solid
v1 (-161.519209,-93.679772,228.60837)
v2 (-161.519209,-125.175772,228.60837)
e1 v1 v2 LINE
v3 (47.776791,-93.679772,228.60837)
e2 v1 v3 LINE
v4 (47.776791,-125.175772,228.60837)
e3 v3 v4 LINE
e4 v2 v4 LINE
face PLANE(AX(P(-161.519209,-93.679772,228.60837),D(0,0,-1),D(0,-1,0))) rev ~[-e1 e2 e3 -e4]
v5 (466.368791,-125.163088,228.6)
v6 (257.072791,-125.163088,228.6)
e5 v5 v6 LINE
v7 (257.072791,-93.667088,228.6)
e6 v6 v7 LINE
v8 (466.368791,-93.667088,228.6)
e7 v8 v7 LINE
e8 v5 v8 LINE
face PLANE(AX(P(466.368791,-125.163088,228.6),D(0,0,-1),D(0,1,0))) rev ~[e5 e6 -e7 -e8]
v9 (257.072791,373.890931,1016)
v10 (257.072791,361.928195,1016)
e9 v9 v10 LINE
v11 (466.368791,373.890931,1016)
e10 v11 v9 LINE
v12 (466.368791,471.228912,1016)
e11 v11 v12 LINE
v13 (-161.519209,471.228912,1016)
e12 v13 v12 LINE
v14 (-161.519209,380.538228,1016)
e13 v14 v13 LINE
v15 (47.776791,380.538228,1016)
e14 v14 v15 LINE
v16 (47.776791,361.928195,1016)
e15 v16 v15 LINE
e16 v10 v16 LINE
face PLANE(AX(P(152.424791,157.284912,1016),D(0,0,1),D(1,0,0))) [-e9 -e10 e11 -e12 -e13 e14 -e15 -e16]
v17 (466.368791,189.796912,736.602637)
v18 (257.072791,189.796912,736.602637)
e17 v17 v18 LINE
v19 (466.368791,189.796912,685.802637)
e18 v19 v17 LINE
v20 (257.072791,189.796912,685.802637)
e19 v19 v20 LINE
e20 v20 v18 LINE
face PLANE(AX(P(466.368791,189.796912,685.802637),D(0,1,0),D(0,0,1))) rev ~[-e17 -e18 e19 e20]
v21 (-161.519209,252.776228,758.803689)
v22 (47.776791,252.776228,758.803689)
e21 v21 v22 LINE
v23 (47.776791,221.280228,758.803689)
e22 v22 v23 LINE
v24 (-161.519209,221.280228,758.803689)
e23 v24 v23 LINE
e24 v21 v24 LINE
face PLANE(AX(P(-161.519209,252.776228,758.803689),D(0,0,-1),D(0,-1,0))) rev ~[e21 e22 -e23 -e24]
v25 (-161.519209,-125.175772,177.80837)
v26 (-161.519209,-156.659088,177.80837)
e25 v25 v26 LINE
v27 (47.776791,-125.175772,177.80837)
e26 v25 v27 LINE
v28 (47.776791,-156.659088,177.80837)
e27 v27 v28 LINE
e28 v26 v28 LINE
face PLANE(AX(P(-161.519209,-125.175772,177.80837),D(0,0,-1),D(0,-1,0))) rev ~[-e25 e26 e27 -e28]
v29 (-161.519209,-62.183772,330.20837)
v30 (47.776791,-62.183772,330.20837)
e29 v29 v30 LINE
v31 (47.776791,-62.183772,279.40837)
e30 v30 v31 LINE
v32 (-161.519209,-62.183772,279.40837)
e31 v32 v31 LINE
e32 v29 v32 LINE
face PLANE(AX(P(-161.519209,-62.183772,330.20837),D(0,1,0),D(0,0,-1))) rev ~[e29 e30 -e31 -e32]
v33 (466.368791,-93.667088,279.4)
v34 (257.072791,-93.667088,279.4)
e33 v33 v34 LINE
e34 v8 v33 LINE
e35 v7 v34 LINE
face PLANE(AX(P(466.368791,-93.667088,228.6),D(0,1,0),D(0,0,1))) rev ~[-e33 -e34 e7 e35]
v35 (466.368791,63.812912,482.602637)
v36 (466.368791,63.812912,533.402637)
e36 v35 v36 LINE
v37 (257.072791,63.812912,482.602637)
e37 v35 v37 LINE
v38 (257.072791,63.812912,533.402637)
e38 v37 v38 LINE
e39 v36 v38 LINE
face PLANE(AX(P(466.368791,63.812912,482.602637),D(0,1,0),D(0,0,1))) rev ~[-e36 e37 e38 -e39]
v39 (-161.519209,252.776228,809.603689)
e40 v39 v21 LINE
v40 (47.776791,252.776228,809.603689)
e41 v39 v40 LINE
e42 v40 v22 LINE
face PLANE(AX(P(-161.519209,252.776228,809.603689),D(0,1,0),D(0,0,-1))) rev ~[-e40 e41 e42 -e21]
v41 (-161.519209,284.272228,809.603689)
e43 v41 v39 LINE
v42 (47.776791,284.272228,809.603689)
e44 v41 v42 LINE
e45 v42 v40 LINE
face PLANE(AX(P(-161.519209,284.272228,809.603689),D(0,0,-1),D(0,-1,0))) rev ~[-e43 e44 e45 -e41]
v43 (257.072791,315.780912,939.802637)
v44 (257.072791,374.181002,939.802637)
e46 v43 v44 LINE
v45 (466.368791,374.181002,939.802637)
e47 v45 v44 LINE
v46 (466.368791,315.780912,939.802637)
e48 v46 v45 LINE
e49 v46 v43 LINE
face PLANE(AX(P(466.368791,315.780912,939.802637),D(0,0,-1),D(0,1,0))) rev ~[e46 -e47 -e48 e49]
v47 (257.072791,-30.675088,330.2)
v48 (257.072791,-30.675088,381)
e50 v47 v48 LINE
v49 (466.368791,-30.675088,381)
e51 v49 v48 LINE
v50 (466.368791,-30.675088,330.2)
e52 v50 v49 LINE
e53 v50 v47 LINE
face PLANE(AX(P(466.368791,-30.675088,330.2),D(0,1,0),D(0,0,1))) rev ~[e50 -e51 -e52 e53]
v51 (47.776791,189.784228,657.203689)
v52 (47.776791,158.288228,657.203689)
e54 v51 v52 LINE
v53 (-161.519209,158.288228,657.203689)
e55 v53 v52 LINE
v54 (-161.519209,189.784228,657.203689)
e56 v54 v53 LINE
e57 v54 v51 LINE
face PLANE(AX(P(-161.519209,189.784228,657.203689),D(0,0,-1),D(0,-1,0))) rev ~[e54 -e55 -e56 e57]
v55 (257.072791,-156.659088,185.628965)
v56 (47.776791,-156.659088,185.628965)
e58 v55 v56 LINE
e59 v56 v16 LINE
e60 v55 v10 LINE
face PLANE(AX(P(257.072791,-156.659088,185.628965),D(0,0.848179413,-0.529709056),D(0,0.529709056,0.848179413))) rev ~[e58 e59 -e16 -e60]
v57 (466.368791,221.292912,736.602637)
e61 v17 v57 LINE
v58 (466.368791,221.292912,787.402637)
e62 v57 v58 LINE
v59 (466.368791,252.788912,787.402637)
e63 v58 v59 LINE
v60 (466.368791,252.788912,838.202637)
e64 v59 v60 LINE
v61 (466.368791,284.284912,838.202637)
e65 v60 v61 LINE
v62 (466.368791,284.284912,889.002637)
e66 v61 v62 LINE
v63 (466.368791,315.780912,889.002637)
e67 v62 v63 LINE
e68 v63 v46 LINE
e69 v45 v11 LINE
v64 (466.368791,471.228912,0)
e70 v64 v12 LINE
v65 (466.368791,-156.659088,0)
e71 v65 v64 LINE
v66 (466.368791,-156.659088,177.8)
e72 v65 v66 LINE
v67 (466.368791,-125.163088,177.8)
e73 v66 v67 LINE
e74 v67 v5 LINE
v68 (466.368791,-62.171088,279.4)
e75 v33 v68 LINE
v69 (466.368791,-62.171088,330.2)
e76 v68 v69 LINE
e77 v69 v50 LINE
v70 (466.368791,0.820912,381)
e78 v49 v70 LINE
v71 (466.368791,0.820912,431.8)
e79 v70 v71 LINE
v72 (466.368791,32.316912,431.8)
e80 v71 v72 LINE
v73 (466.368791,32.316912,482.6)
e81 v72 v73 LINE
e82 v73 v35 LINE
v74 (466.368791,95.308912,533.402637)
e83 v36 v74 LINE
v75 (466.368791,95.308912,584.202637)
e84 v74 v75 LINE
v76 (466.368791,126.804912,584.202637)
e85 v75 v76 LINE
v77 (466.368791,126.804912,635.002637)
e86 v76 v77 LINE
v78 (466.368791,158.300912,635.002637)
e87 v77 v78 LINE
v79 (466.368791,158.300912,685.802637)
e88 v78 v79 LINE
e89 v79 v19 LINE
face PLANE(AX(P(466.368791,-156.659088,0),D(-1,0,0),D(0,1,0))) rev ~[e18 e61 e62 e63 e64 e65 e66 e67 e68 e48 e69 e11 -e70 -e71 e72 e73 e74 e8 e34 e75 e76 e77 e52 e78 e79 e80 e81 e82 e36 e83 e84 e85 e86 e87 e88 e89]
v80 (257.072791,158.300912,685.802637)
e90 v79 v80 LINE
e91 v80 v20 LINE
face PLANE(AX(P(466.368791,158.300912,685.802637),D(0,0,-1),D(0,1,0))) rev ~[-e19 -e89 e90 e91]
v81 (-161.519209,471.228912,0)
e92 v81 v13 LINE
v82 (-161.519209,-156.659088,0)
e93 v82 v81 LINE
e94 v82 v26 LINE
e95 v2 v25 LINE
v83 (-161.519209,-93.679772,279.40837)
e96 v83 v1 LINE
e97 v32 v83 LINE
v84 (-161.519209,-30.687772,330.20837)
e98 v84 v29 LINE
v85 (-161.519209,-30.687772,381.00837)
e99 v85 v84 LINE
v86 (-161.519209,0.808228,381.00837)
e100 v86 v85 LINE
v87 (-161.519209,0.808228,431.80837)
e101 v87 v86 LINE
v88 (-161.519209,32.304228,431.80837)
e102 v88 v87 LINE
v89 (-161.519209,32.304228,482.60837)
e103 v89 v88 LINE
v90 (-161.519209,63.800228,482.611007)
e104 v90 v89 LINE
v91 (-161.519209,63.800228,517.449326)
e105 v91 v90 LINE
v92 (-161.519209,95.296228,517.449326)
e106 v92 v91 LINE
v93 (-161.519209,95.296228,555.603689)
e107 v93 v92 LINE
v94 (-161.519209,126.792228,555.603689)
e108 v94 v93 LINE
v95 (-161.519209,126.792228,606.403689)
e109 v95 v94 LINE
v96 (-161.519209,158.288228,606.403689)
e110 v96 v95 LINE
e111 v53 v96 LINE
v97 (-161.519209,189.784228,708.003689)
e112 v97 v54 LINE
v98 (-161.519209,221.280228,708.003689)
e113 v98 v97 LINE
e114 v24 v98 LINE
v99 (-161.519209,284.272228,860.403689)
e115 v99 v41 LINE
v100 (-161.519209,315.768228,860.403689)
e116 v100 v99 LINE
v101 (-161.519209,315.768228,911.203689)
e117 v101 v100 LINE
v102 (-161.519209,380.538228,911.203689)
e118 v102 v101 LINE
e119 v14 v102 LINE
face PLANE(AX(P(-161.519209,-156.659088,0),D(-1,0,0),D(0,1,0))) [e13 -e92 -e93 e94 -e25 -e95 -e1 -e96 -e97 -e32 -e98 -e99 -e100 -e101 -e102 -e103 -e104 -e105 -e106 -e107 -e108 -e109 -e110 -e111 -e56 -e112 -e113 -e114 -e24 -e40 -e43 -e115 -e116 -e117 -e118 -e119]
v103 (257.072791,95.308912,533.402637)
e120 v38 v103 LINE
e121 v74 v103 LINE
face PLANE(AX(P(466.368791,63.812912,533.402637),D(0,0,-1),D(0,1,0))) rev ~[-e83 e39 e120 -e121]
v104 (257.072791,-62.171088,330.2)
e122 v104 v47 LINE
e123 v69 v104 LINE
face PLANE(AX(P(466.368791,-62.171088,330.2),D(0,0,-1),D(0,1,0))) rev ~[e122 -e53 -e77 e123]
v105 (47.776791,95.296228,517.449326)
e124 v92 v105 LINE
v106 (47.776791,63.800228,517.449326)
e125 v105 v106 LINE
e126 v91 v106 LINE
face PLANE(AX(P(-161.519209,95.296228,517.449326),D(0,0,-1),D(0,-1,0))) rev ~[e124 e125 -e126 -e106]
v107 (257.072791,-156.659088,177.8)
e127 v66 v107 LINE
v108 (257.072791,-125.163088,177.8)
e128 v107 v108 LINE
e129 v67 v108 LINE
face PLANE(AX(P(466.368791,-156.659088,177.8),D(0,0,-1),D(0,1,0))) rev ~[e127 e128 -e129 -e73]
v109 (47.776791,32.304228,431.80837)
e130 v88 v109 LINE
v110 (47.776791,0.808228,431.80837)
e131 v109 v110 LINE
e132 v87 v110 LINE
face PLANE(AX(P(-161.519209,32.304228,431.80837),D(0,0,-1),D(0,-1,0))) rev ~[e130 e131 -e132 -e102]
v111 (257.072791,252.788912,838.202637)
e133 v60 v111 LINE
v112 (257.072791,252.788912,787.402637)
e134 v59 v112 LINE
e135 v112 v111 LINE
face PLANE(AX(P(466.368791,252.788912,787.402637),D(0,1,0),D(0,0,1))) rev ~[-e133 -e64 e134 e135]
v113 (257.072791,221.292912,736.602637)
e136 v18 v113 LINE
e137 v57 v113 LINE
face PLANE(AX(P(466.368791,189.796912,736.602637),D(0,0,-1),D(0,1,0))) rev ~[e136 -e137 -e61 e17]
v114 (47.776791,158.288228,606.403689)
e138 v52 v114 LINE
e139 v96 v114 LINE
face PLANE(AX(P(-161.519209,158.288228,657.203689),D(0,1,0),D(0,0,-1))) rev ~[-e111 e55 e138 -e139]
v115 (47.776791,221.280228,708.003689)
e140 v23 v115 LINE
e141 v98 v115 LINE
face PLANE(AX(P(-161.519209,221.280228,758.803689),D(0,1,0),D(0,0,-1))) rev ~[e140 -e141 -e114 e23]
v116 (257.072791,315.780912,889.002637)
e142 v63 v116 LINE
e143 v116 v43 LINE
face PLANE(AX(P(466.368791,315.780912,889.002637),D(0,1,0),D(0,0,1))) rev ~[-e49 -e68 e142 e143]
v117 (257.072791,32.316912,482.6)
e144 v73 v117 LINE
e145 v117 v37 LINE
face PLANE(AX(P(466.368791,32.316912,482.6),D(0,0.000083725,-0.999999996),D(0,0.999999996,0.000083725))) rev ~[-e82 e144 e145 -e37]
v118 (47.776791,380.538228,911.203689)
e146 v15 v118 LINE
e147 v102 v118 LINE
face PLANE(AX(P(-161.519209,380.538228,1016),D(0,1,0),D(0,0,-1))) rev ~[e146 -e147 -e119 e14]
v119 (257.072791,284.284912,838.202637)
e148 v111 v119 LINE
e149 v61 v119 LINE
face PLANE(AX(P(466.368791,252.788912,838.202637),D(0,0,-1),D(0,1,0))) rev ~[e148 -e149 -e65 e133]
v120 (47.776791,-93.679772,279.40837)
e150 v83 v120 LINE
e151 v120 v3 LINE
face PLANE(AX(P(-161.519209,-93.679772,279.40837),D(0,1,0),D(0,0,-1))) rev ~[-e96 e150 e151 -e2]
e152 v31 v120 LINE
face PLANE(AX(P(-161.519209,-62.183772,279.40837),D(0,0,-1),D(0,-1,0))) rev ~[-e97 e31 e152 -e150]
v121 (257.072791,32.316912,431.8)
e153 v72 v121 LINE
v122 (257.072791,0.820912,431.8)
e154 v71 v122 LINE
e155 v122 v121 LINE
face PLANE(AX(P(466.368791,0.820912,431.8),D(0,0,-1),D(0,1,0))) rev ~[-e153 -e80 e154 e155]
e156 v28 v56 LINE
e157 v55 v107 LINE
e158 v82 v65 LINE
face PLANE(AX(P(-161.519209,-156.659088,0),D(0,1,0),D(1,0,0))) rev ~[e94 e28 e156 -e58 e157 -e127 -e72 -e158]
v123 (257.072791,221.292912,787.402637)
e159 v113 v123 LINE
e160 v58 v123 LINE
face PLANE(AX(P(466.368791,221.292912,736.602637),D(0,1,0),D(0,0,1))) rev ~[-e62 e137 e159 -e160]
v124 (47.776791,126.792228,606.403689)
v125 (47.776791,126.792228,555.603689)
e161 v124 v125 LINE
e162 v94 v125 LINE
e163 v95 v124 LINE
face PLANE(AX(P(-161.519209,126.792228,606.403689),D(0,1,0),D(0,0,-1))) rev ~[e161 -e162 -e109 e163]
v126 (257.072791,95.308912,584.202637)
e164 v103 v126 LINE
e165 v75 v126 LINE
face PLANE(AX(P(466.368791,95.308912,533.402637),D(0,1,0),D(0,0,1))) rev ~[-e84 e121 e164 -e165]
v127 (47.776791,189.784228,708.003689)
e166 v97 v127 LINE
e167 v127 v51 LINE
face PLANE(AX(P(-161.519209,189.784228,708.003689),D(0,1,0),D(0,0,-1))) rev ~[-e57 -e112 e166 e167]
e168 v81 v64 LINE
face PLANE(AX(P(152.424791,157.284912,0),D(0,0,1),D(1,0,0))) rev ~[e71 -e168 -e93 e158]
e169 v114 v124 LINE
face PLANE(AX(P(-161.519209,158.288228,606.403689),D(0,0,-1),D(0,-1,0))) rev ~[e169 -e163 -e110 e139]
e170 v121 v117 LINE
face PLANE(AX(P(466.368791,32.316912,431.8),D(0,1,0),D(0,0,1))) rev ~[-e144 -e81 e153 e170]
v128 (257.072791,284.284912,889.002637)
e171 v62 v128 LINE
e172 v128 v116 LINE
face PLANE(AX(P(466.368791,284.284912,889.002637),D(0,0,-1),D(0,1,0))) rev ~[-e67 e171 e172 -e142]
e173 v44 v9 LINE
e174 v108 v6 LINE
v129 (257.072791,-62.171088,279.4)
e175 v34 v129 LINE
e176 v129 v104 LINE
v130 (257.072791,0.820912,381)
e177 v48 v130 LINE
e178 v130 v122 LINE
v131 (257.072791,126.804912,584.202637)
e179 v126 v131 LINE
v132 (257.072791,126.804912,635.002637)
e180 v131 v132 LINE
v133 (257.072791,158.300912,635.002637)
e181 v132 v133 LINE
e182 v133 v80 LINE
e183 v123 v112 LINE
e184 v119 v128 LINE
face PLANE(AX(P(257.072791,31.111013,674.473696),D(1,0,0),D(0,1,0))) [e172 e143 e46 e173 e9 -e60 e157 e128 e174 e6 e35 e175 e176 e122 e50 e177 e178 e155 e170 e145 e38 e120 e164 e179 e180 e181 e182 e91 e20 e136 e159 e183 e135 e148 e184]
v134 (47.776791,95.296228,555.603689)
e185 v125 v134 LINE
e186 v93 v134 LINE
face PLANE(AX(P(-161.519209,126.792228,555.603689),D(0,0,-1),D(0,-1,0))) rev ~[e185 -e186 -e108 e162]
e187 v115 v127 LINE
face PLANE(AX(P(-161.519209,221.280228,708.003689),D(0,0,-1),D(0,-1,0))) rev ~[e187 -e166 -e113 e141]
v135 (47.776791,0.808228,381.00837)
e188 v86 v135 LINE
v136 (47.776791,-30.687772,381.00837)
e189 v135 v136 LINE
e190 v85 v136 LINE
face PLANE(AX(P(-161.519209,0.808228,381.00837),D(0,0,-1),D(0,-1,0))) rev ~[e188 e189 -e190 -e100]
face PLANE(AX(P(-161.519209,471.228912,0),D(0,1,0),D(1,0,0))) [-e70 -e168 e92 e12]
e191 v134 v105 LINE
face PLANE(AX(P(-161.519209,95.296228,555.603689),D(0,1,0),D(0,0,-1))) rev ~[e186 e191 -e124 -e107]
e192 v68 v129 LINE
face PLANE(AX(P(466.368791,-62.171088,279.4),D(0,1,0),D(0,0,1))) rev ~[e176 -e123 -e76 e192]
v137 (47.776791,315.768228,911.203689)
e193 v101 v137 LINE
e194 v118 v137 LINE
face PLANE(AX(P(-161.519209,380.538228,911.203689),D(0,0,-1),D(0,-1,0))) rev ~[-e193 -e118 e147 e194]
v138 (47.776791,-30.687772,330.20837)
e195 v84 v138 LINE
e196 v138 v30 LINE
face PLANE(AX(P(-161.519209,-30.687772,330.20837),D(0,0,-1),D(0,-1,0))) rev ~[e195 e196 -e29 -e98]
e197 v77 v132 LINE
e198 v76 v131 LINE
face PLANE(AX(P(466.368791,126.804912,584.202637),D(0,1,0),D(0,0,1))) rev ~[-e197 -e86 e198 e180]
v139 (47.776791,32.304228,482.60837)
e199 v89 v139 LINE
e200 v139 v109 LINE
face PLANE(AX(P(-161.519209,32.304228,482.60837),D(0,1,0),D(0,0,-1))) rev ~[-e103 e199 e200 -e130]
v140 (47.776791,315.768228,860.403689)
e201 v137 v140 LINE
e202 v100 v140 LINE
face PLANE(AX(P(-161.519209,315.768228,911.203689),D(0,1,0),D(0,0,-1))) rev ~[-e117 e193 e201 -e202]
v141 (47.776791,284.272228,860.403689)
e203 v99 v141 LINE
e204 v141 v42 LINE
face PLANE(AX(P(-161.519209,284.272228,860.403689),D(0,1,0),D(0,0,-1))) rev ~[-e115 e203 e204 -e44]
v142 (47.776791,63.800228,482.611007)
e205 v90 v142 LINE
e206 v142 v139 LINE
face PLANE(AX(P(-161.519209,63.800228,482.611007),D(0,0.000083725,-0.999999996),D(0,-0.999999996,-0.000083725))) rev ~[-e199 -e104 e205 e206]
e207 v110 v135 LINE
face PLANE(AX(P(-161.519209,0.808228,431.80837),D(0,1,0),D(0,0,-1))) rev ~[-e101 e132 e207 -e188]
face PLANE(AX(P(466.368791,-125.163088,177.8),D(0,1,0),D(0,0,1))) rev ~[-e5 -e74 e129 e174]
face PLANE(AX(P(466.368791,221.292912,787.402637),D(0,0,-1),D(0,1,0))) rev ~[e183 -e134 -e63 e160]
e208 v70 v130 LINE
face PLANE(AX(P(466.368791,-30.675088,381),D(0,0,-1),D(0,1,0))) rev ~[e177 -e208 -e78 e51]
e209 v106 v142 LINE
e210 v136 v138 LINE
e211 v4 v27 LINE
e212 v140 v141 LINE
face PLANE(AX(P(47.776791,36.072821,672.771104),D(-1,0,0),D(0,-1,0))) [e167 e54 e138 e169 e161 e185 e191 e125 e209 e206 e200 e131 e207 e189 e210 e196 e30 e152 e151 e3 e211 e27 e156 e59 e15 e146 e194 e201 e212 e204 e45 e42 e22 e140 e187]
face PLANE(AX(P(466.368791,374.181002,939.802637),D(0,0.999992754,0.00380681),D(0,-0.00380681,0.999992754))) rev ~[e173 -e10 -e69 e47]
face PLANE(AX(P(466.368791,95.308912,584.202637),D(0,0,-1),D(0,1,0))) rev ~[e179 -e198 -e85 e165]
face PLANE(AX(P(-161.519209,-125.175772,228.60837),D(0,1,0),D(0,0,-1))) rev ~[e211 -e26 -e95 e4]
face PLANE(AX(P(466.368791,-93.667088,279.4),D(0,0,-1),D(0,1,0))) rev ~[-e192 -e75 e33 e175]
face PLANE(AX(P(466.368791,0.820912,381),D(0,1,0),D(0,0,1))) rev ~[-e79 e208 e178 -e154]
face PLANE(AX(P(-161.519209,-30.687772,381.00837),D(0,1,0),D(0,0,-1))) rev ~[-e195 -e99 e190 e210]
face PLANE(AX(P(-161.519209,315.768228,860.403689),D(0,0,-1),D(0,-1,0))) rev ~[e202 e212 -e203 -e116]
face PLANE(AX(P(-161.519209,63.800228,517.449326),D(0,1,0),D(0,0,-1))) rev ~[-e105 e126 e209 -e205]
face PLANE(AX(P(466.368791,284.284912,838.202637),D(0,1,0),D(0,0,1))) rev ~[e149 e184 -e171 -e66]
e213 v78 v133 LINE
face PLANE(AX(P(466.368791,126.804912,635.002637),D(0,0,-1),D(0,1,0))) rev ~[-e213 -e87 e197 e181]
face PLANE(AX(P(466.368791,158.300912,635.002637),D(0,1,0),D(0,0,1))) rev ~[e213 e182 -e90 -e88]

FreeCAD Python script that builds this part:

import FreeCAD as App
import Part
import Sketcher
Q = App.Units.Quantity

doc = App.newDocument("Part")
params = doc.addObject("Spreadsheet::Sheet", "Params")
for row, (alias, value) in enumerate([
    ("sketch1_width", "24.72 in"),
    ("pad1_length", "40 in"),
    ("sketch2_height", "33 in"),
    ("sketch2_height2", "2 in"),
    ("sketch2_width", "1.24 in"),
    ("pocket1_length", "8.24 in"),
    ("pocket2_length", "8.24 in"),
    ("sketch4_height", "2 in"),
    ("sketch4_width", "2.55 in"),
    ("sketch4_width2", "1.24 in"),
    ("sketch4_length", "1.24 in"),
    ("pocket3_length", "8.24 in"),
], start=1):
    params.set(f"A{row}", alias)
    params.set(f"B{row}", "=" + value)
    params.setAlias(f"B{row}", alias)

body = doc.addObject("PartDesign::Body", "Body")

# Sketch on XY plane
sketch1 = doc.addObject("Sketcher::SketchObject", "Sketch")
body.addObject(sketch1)
sketch1.AttachmentSupport = (doc.XY_Plane, [""])
sketch1.MapMode = "FlatFace"
sketch1.addGeometry(Part.LineSegment(App.Vector(-162, 471, 0), App.Vector(-162, -157, 0)), False)
sketch1.addGeometry(Part.LineSegment(App.Vector(-162, -157, 0), App.Vector(466, -157, 0)), False)
sketch1.addGeometry(Part.LineSegment(App.Vector(466, -157, 0), App.Vector(466, 471, 0)), False)
sketch1.addGeometry(Part.LineSegment(App.Vector(466, 471, 0), App.Vector(-162, 471, 0)), False)
sketch1.addConstraint(Sketcher.Constraint("Coincident", 0, 2, 1, 1))
sketch1.addConstraint(Sketcher.Constraint("Coincident", 1, 2, 2, 1))
sketch1.addConstraint(Sketcher.Constraint("Coincident", 2, 2, 3, 1))
sketch1.addConstraint(Sketcher.Constraint("Coincident", 3, 2, 0, 1))
sketch1.addConstraint(Sketcher.Constraint("Vertical", 0))
sketch1.addConstraint(Sketcher.Constraint("Horizontal", 1))
sketch1.addConstraint(Sketcher.Constraint("Vertical", 2))
sketch1.addConstraint(Sketcher.Constraint("Horizontal", 3))
sketch1.addConstraint(Sketcher.Constraint("Equal", 3, 0))
sketch1.addConstraint(Sketcher.Constraint("DistanceX", 1, 1, 1, 2, Q("24.72 in")))
sketch1.addConstraint(Sketcher.Constraint("DistanceX", 0, 2, -1, 1, Q("161.519209 mm")))
sketch1.addConstraint(Sketcher.Constraint("DistanceY", 0, 2, -1, 1, Q("156.659088 mm")))
sketch1.setExpression("Constraints[9]", "Params.sketch1_width")
pad1 = doc.addObject("PartDesign::Pad", "Pad")
body.addObject(pad1)
pad1.Profile = sketch1
pad1.setExpression("Length", "Params.pad1_length")

# Sketch on YZ plane
sketch2 = doc.addObject("Sketcher::SketchObject", "Sketch001")
body.addObject(sketch2)
sketch2.AttachmentSupport = (doc.YZ_Plane, [""])
sketch2.MapMode = "FlatFace"
sketch2.AttachmentOffset = App.Placement(App.Vector(0, 0, 466.368791), App.Rotation())
sketch2.addGeometry(Part.LineSegment(App.Vector(-157, 1016, 0), App.Vector(-157, 178, 0)), False)
sketch2.addGeometry(Part.LineSegment(App.Vector(-157, 178, 0), App.Vector(-125, 178, 0)), False)
sketch2.addGeometry(Part.LineSegment(App.Vector(-125, 178, 0), App.Vector(-125, 229, 0)), False)
sketch2.addGeometry(Part.LineSegment(App.Vector(-125, 229, 0), App.Vector(-94, 229, 0)), False)
sketch2.addGeometry(Part.LineSegment(App.Vector(-94, 229, 0), App.Vector(-94, 279, 0)), False)
sketch2.addGeometry(Part.LineSegment(App.Vector(-94, 279, 0), App.Vector(-62, 279, 0)), False)
sketch2.addGeometry(Part.LineSegment(App.Vector(-62, 279, 0), App.Vector(-62, 330, 0)), False)
sketch2.addGeometry(Part.LineSegment(App.Vector(-62, 330, 0), App.Vector(-31, 330, 0)), False)
sketch2.addGeometry(Part.LineSegment(App.Vector(-31, 330, 0), App.Vector(-31, 381, 0)), False)
sketch2.addGeometry(Part.LineSegment(App.Vector(-31, 381, 0), App.Vector(1, 381, 0)), False)
sketch2.addGeometry(Part.LineSegment(App.Vector(1, 381, 0), App.Vector(1, 432, 0)), False)
sketch2.addGeometry(Part.LineSegment(App.Vector(1, 432, 0), App.Vector(32, 432, 0)), False)
sketch2.addGeometry(Part.LineSegment(App.Vector(32, 432, 0), App.Vector(32, 483, 0)), False)
sketch2.addGeometry(Part.LineSegment(App.Vector(32, 483, 0), App.Vector(64, 483, 0)), False)
sketch2.addGeometry(Part.LineSegment(App.Vector(64, 483, 0), App.Vector(64, 533, 0)), False)
sketch2.addGeometry(Part.LineSegment(App.Vector(64, 533, 0), App.Vector(95, 533, 0)), False)
sketch2.addGeometry(Part.LineSegment(App.Vector(95, 533, 0), App.Vector(95, 584, 0)), False)
sketch2.addGeometry(Part.LineSegment(App.Vector(95, 584, 0), App.Vector(127, 584, 0)), False)
sketch2.addGeometry(Part.LineSegment(App.Vector(127, 584, 0), App.Vector(127, 635, 0)), False)
sketch2.addGeometry(Part.LineSegment(App.Vector(127, 635, 0), App.Vector(158, 635, 0)), False)
sketch2.addGeometry(Part.LineSegment(App.Vector(158, 635, 0), App.Vector(158, 686, 0)), False)
sketch2.addGeometry(Part.LineSegment(App.Vector(158, 686, 0), App.Vector(190, 686, 0)), False)
sketch2.addGeometry(Part.LineSegment(App.Vector(190, 686, 0), App.Vector(190, 737, 0)), False)
sketch2.addGeometry(Part.LineSegment(App.Vector(190, 737, 0), App.Vector(221, 737, 0)), False)
sketch2.addGeometry(Part.LineSegment(App.Vector(221, 737, 0), App.Vector(221, 787, 0)), False)
sketch2.addGeometry(Part.LineSegment(App.Vector(221, 787, 0), App.Vector(253, 787, 0)), False)
sketch2.addGeometry(Part.LineSegment(App.Vector(253, 787, 0), App.Vector(253, 838, 0)), False)
sketch2.addGeometry(Part.LineSegment(App.Vector(253, 838, 0), App.Vector(284, 838, 0)), False)
sketch2.addGeometry(Part.LineSegment(App.Vector(284, 838, 0), App.Vector(284, 889, 0)), False)
sketch2.addGeometry(Part.LineSegment(App.Vector(284, 889, 0), App.Vector(316, 889, 0)), False)
sketch2.addGeometry(Part.LineSegment(App.Vector(316, 889, 0), App.Vector(316, 940, 0)), False)
sketch2.addGeometry(Part.LineSegment(App.Vector(316, 940, 0), App.Vector(374, 940, 0)), False)
sketch2.addGeometry(Part.LineSegment(App.Vector(374, 940, 0), App.Vector(374, 1016, 0)), False)
sketch2.addGeometry(Part.LineSegment(App.Vector(374, 1016, 0), App.Vector(-157, 1016, 0)), False)
sketch2.addConstraint(Sketcher.Constraint("Coincident", 0, 2, 1, 1))
sketch2.addConstraint(Sketcher.Constraint("Coincident", 1, 2, 2, 1))
sketch2.addConstraint(Sketcher.Constraint("Coincident", 2, 2, 3, 1))
sketch2.addConstraint(Sketcher.Constraint("Coincident", 3, 2, 4, 1))
sketch2.addConstraint(Sketcher.Constraint("Coincident", 4, 2, 5, 1))
sketch2.addConstraint(Sketcher.Constraint("Coincident", 5, 2, 6, 1))
sketch2.addConstraint(Sketcher.Constraint("Coincident", 6, 2, 7, 1))
sketch2.addConstraint(Sketcher.Constraint("Coincident", 7, 2, 8, 1))
sketch2.addConstraint(Sketcher.Constraint("Coincident", 8, 2, 9, 1))
sketch2.addConstraint(Sketcher.Constraint("Coincident", 9, 2, 10, 1))
sketch2.addConstraint(Sketcher.Constraint("Coincident", 10, 2, 11, 1))
sketch2.addConstraint(Sketcher.Constraint("Coincident", 11, 2, 12, 1))
sketch2.addConstraint(Sketcher.Constraint("Coincident", 12, 2, 13, 1))
sketch2.addConstraint(Sketcher.Constraint("Coincident", 13, 2, 14, 1))
sketch2.addConstraint(Sketcher.Constraint("Coincident", 14, 2, 15, 1))
sketch2.addConstraint(Sketcher.Constraint("Coincident", 15, 2, 16, 1))
sketch2.addConstraint(Sketcher.Constraint("Coincident", 16, 2, 17, 1))
sketch2.addConstraint(Sketcher.Constraint("Coincident", 17, 2, 18, 1))
sketch2.addConstraint(Sketcher.Constraint("Coincident", 18, 2, 19, 1))
sketch2.addConstraint(Sketcher.Constraint("Coincident", 19, 2, 20, 1))
sketch2.addConstraint(Sketcher.Constraint("Coincident", 20, 2, 21, 1))
sketch2.addConstraint(Sketcher.Constraint("Coincident", 21, 2, 22, 1))
sketch2.addConstraint(Sketcher.Constraint("Coincident", 22, 2, 23, 1))
sketch2.addConstraint(Sketcher.Constraint("Coincident", 23, 2, 24, 1))
sketch2.addConstraint(Sketcher.Constraint("Coincident", 24, 2, 25, 1))
sketch2.addConstraint(Sketcher.Constraint("Coincident", 25, 2, 26, 1))
sketch2.addConstraint(Sketcher.Constraint("Coincident", 26, 2, 27, 1))
sketch2.addConstraint(Sketcher.Constraint("Coincident", 27, 2, 28, 1))
sketch2.addConstraint(Sketcher.Constraint("Coincident", 28, 2, 29, 1))
sketch2.addConstraint(Sketcher.Constraint("Coincident", 29, 2, 30, 1))
sketch2.addConstraint(Sketcher.Constraint("Coincident", 30, 2, 31, 1))
sketch2.addConstraint(Sketcher.Constraint("Coincident", 31, 2, 32, 1))
sketch2.addConstraint(Sketcher.Constraint("Coincident", 32, 2, 33, 1))
sketch2.addConstraint(Sketcher.Constraint("Coincident", 33, 2, 0, 1))
sketch2.addConstraint(Sketcher.Constraint("Vertical", 0))
sketch2.addConstraint(Sketcher.Constraint("Horizontal", 1))
sketch2.addConstraint(Sketcher.Constraint("Vertical", 2))
sketch2.addConstraint(Sketcher.Constraint("Horizontal", 3))
sketch2.addConstraint(Sketcher.Constraint("Vertical", 4))
sketch2.addConstraint(Sketcher.Constraint("Horizontal", 5))
sketch2.addConstraint(Sketcher.Constraint("Vertical", 6))
sketch2.addConstraint(Sketcher.Constraint("Horizontal", 7))
sketch2.addConstraint(Sketcher.Constraint("Vertical", 8))
sketch2.addConstraint(Sketcher.Constraint("Horizontal", 9))
sketch2.addConstraint(Sketcher.Constraint("Vertical", 10))
sketch2.addConstraint(Sketcher.Constraint("Horizontal", 11))
sketch2.addConstraint(Sketcher.Constraint("Vertical", 12))
sketch2.addConstraint(Sketcher.Constraint("Vertical", 14))
sketch2.addConstraint(Sketcher.Constraint("Horizontal", 15))
sketch2.addConstraint(Sketcher.Constraint("Vertical", 16))
sketch2.addConstraint(Sketcher.Constraint("Horizontal", 17))
sketch2.addConstraint(Sketcher.Constraint("Vertical", 18))
sketch2.addConstraint(Sketcher.Constraint("Horizontal", 19))
sketch2.addConstraint(Sketcher.Constraint("Vertical", 20))
sketch2.addConstraint(Sketcher.Constraint("Horizontal", 21))
sketch2.addConstraint(Sketcher.Constraint("Vertical", 22))
sketch2.addConstraint(Sketcher.Constraint("Horizontal", 23))
sketch2.addConstraint(Sketcher.Constraint("Vertical", 24))
sketch2.addConstraint(Sketcher.Constraint("Horizontal", 25))
sketch2.addConstraint(Sketcher.Constraint("Vertical", 26))
sketch2.addConstraint(Sketcher.Constraint("Horizontal", 27))
sketch2.addConstraint(Sketcher.Constraint("Vertical", 28))
sketch2.addConstraint(Sketcher.Constraint("Horizontal", 29))
sketch2.addConstraint(Sketcher.Constraint("Vertical", 30))
sketch2.addConstraint(Sketcher.Constraint("Horizontal", 31))
sketch2.addConstraint(Sketcher.Constraint("Horizontal", 33))
sketch2.addConstraint(Sketcher.Constraint("Equal", 1, 3))
sketch2.addConstraint(Sketcher.Constraint("Equal", 3, 5))
sketch2.addConstraint(Sketcher.Constraint("Equal", 5, 7))
sketch2.addConstraint(Sketcher.Constraint("Equal", 7, 9))
sketch2.addConstraint(Sketcher.Constraint("Equal", 9, 11))
sketch2.addConstraint(Sketcher.Constraint("Equal", 11, 15))
sketch2.addConstraint(Sketcher.Constraint("Equal", 15, 17))
sketch2.addConstraint(Sketcher.Constraint("Equal", 17, 19))
sketch2.addConstraint(Sketcher.Constraint("Equal", 19, 21))
sketch2.addConstraint(Sketcher.Constraint("Equal", 21, 23))
sketch2.addConstraint(Sketcher.Constraint("Equal", 23, 25))
sketch2.addConstraint(Sketcher.Constraint("Equal", 25, 27))
sketch2.addConstraint(Sketcher.Constraint("Equal", 27, 29))
sketch2.addConstraint(Sketcher.Constraint("Equal", 2, 4))
sketch2.addConstraint(Sketcher.Constraint("Equal", 4, 6))
sketch2.addConstraint(Sketcher.Constraint("Equal", 6, 8))
sketch2.addConstraint(Sketcher.Constraint("Equal", 8, 10))
sketch2.addConstraint(Sketcher.Constraint("Equal", 10, 12))
sketch2.addConstraint(Sketcher.Constraint("Equal", 12, 14))
sketch2.addConstraint(Sketcher.Constraint("Equal", 14, 16))
sketch2.addConstraint(Sketcher.Constraint("Equal", 16, 18))
sketch2.addConstraint(Sketcher.Constraint("Equal", 18, 20))
sketch2.addConstraint(Sketcher.Constraint("Equal", 20, 22))
sketch2.addConstraint(Sketcher.Constraint("Equal", 22, 24))
sketch2.addConstraint(Sketcher.Constraint("Equal", 24, 26))
sketch2.addConstraint(Sketcher.Constraint("Equal", 26, 28))
sketch2.addConstraint(Sketcher.Constraint("Equal", 28, 30))
sketch2.addConstraint(Sketcher.Constraint("DistanceY", 0, 2, 0, 1, Q("33 in")))
sketch2.addConstraint(Sketcher.Constraint("DistanceY", 2, 1, 2, 2, Q("2 in")))
sketch2.addConstraint(Sketcher.Constraint("DistanceY", -1, 1, 0, 2, Q("7 in")))
sketch2.addConstraint(Sketcher.Constraint("DistanceX", 1, 1, 1, 2, Q("1.24 in")))
sketch2.addConstraint(Sketcher.Constraint("DistanceX", 33, 2, 20, 2, Q("12.4 in")))
sketch2.addConstraint(Sketcher.Constraint("DistanceX", 31, 1, 31, 2, Q("58.40009 mm")))
sketch2.addConstraint(Sketcher.Constraint("DistanceX", 33, 2, 33, 1, Q("530.550019 mm")))
sketch2.addConstraint(Sketcher.Constraint("DistanceX", -1, 1, 31, 2, Q("374.181002 mm")))
sketch2.addConstraint(Sketcher.Constraint("Distance", 32, Q("76.197915 mm")))
sketch2.setExpression("Constraints[93]", "Params.sketch2_height")
sketch2.setExpression("Constraints[94]", "Params.sketch2_height2")
sketch2.setExpression("Constraints[96]", "Params.sketch2_width")
pocket1 = doc.addObject("PartDesign::Pocket", "Pocket")
body.addObject(pocket1)
pocket1.Profile = sketch2
pocket1.setExpression("Length", "Params.pocket1_length")

# Sketch on YZ plane
sketch3 = doc.addObject("Sketcher::SketchObject", "Sketch002")
body.addObject(sketch3)
sketch3.AttachmentSupport = (doc.YZ_Plane, [""])
sketch3.MapMode = "FlatFace"
sketch3.AttachmentOffset = App.Placement(App.Vector(0, 0, 257.072791), App.Rotation())
sketch3.addGeometry(Part.LineSegment(App.Vector(-157, 186, 0), App.Vector(362, 1016, 0)), False)
sketch3.addGeometry(Part.LineSegment(App.Vector(362, 1016, 0), App.Vector(-157, 1016, 0)), False)
sketch3.addGeometry(Part.LineSegment(App.Vector(-157, 1016, 0), App.Vector(-157, 186, 0)), False)
sketch3.addConstraint(Sketcher.Constraint("Coincident", 0, 2, 1, 1))
sketch3.addConstraint(Sketcher.Constraint("Coincident", 1, 2, 2, 1))
sketch3.addConstraint(Sketcher.Constraint("Coincident", 2, 2, 0, 1))
sketch3.addConstraint(Sketcher.Constraint("Horizontal", 1))
sketch3.addConstraint(Sketcher.Constraint("Vertical", 2))
sketch3.addConstraint(Sketcher.Constraint("DistanceY", -1, 1, 0, 2, Q("40 in")))
sketch3.addConstraint(Sketcher.Constraint("DistanceX", 1, 2, 1, 1, Q("518.587283 mm")))
sketch3.addConstraint(Sketcher.Constraint("DistanceY", 2, 2, 2, 1, Q("830.371035 mm")))
sketch3.addConstraint(Sketcher.Constraint("DistanceX", 1, 2, -1, 1, Q("156.659088 mm")))
pocket2 = doc.addObject("PartDesign::Pocket", "Pocket001")
body.addObject(pocket2)
pocket2.Profile = sketch3
pocket2.setExpression("Length", "Params.pocket2_length")

# Sketch on YZ plane
sketch4 = doc.addObject("Sketcher::SketchObject", "Sketch003")
body.addObject(sketch4)
sketch4.AttachmentSupport = (doc.YZ_Plane, [""])
sketch4.MapMode = "FlatFace"
sketch4.AttachmentOffset = App.Placement(App.Vector(0, 0, -161.519209), App.Rotation())
sketch4.addGeometry(Part.LineSegment(App.Vector(-157, 1016, 0), App.Vector(381, 1016, 0)), False)
sketch4.addGeometry(Part.LineSegment(App.Vector(381, 1016, 0), App.Vector(381, 911, 0)), False)
sketch4.addGeometry(Part.LineSegment(App.Vector(381, 911, 0), App.Vector(316, 911, 0)), False)
sketch4.addGeometry(Part.LineSegment(App.Vector(316, 911, 0), App.Vector(316, 860, 0)), False)
sketch4.addGeometry(Part.LineSegment(App.Vector(316, 860, 0), App.Vector(284, 860, 0)), False)
sketch4.addGeometry(Part.LineSegment(App.Vector(284, 860, 0), App.Vector(284, 810, 0)), False)
sketch4.addGeometry(Part.LineSegment(App.Vector(284, 810, 0), App.Vector(253, 810, 0)), False)
sketch4.addGeometry(Part.LineSegment(App.Vector(253, 810, 0), App.Vector(253, 759, 0)), False)
sketch4.addGeometry(Part.LineSegment(App.Vector(253, 759, 0), App.Vector(221, 759, 0)), False)
sketch4.addGeometry(Part.LineSegment(App.Vector(221, 759, 0), App.Vector(221, 708, 0)), False)
sketch4.addGeometry(Part.LineSegment(App.Vector(221, 708, 0), App.Vector(190, 708, 0)), False)
sketch4.addGeometry(Part.LineSegment(App.Vector(190, 708, 0), App.Vector(190, 657, 0)), False)
sketch4.addGeometry(Part.LineSegment(App.Vector(190, 657, 0), App.Vector(158, 657, 0)), False)
sketch4.addGeometry(Part.LineSegment(App.Vector(158, 657, 0), App.Vector(158, 606, 0)), False)
sketch4.addGeometry(Part.LineSegment(App.Vector(158, 606, 0), App.Vector(127, 606, 0)), False)
sketch4.addGeometry(Part.LineSegment(App.Vector(127, 606, 0), App.Vector(127, 556, 0)), False)
sketch4.addGeometry(Part.LineSegment(App.Vector(127, 556, 0), App.Vector(95, 556, 0)), False)
sketch4.addGeometry(Part.LineSegment(App.Vector(95, 556, 0), App.Vector(95, 517, 0)), False)
sketch4.addGeometry(Part.LineSegment(App.Vector(95, 517, 0), App.Vector(64, 517, 0)), False)
sketch4.addGeometry(Part.LineSegment(App.Vector(64, 517, 0), App.Vector(64, 483, 0)), False)
sketch4.addGeometry(Part.LineSegment(App.Vector(64, 483, 0), App.Vector(32, 483, 0)), False)
sketch4.addGeometry(Part.LineSegment(App.Vector(32, 483, 0), App.Vector(32, 432, 0)), False)
sketch4.addGeometry(Part.LineSegment(App.Vector(32, 432, 0), App.Vector(1, 432, 0)), False)
sketch4.addGeometry(Part.LineSegment(App.Vector(1, 432, 0), App.Vector(1, 381, 0)), False)
sketch4.addGeometry(Part.LineSegment(App.Vector(1, 381, 0), App.Vector(-31, 381, 0)), False)
sketch4.addGeometry(Part.LineSegment(App.Vector(-31, 381, 0), App.Vector(-31, 330, 0)), False)
sketch4.addGeometry(Part.LineSegment(App.Vector(-31, 330, 0), App.Vector(-62, 330, 0)), False)
sketch4.addGeometry(Part.LineSegment(App.Vector(-62, 330, 0), App.Vector(-62, 279, 0)), False)
sketch4.addGeometry(Part.LineSegment(App.Vector(-62, 279, 0), App.Vector(-94, 279, 0)), False)
sketch4.addGeometry(Part.LineSegment(App.Vector(-94, 279, 0), App.Vector(-94, 229, 0)), False)
sketch4.addGeometry(Part.LineSegment(App.Vector(-94, 229, 0), App.Vector(-125, 229, 0)), False)
sketch4.addGeometry(Part.LineSegment(App.Vector(-125, 229, 0), App.Vector(-125, 178, 0)), False)
sketch4.addGeometry(Part.LineSegment(App.Vector(-125, 178, 0), App.Vector(-157, 178, 0)), False)
sketch4.addGeometry(Part.LineSegment(App.Vector(-157, 178, 0), App.Vector(-157, 1016, 0)), False)
sketch4.addConstraint(Sketcher.Constraint("Coincident", 0, 2, 1, 1))
sketch4.addConstraint(Sketcher.Constraint("Coincident", 1, 2, 2, 1))
sketch4.addConstraint(Sketcher.Constraint("Coincident", 2, 2, 3, 1))
sketch4.addConstraint(Sketcher.Constraint("Coincident", 3, 2, 4, 1))
sketch4.addConstraint(Sketcher.Constraint("Coincident", 4, 2, 5, 1))
sketch4.addConstraint(Sketcher.Constraint("Coincident", 5, 2, 6, 1))
sketch4.addConstraint(Sketcher.Constraint("Coincident", 6, 2, 7, 1))
sketch4.addConstraint(Sketcher.Constraint("Coincident", 7, 2, 8, 1))
sketch4.addConstraint(Sketcher.Constraint("Coincident", 8, 2, 9, 1))
sketch4.addConstraint(Sketcher.Constraint("Coincident", 9, 2, 10, 1))
sketch4.addConstraint(Sketcher.Constraint("Coincident", 10, 2, 11, 1))
sketch4.addConstraint(Sketcher.Constraint("Coincident", 11, 2, 12, 1))
sketch4.addConstraint(Sketcher.Constraint("Coincident", 12, 2, 13, 1))
sketch4.addConstraint(Sketcher.Constraint("Coincident", 13, 2, 14, 1))
sketch4.addConstraint(Sketcher.Constraint("Coincident", 14, 2, 15, 1))
sketch4.addConstraint(Sketcher.Constraint("Coincident", 15, 2, 16, 1))
sketch4.addConstraint(Sketcher.Constraint("Coincident", 16, 2, 17, 1))
sketch4.addConstraint(Sketcher.Constraint("Coincident", 17, 2, 18, 1))
sketch4.addConstraint(Sketcher.Constraint("Coincident", 18, 2, 19, 1))
sketch4.addConstraint(Sketcher.Constraint("Coincident", 19, 2, 20, 1))
sketch4.addConstraint(Sketcher.Constraint("Coincident", 20, 2, 21, 1))
sketch4.addConstraint(Sketcher.Constraint("Coincident", 21, 2, 22, 1))
sketch4.addConstraint(Sketcher.Constraint("Coincident", 22, 2, 23, 1))
sketch4.addConstraint(Sketcher.Constraint("Coincident", 23, 2, 24, 1))
sketch4.addConstraint(Sketcher.Constraint("Coincident", 24, 2, 25, 1))
sketch4.addConstraint(Sketcher.Constraint("Coincident", 25, 2, 26, 1))
sketch4.addConstraint(Sketcher.Constraint("Coincident", 26, 2, 27, 1))
sketch4.addConstraint(Sketcher.Constraint("Coincident", 27, 2, 28, 1))
sketch4.addConstraint(Sketcher.Constraint("Coincident", 28, 2, 29, 1))
sketch4.addConstraint(Sketcher.Constraint("Coincident", 29, 2, 30, 1))
sketch4.addConstraint(Sketcher.Constraint("Coincident", 30, 2, 31, 1))
sketch4.addConstraint(Sketcher.Constraint("Coincident", 31, 2, 32, 1))
sketch4.addConstraint(Sketcher.Constraint("Coincident", 32, 2, 33, 1))
sketch4.addConstraint(Sketcher.Constraint("Coincident", 33, 2, 0, 1))
sketch4.addConstraint(Sketcher.Constraint("Horizontal", 0))
sketch4.addConstraint(Sketcher.Constraint("Vertical", 1))
sketch4.addConstraint(Sketcher.Constraint("Horizontal", 2))
sketch4.addConstraint(Sketcher.Constraint("Vertical", 3))
sketch4.addConstraint(Sketcher.Constraint("Horizontal", 4))
sketch4.addConstraint(Sketcher.Constraint("Vertical", 5))
sketch4.addConstraint(Sketcher.Constraint("Horizontal", 6))
sketch4.addConstraint(Sketcher.Constraint("Vertical", 7))
sketch4.addConstraint(Sketcher.Constraint("Horizontal", 8))
sketch4.addConstraint(Sketcher.Constraint("Vertical", 9))
sketch4.addConstraint(Sketcher.Constraint("Horizontal", 10))
sketch4.addConstraint(Sketcher.Constraint("Vertical", 11))
sketch4.addConstraint(Sketcher.Constraint("Horizontal", 12))
sketch4.addConstraint(Sketcher.Constraint("Vertical", 13))
sketch4.addConstraint(Sketcher.Constraint("Horizontal", 14))
sketch4.addConstraint(Sketcher.Constraint("Vertical", 15))
sketch4.addConstraint(Sketcher.Constraint("Horizontal", 16))
sketch4.addConstraint(Sketcher.Constraint("Vertical", 17))
sketch4.addConstraint(Sketcher.Constraint("Horizontal", 18))
sketch4.addConstraint(Sketcher.Constraint("Vertical", 19))
sketch4.addConstraint(Sketcher.Constraint("Vertical", 21))
sketch4.addConstraint(Sketcher.Constraint("Horizontal", 22))
sketch4.addConstraint(Sketcher.Constraint("Vertical", 23))
sketch4.addConstraint(Sketcher.Constraint("Horizontal", 24))
sketch4.addConstraint(Sketcher.Constraint("Vertical", 25))
sketch4.addConstraint(Sketcher.Constraint("Horizontal", 26))
sketch4.addConstraint(Sketcher.Constraint("Vertical", 27))
sketch4.addConstraint(Sketcher.Constraint("Horizontal", 28))
sketch4.addConstraint(Sketcher.Constraint("Vertical", 29))
sketch4.addConstraint(Sketcher.Constraint("Horizontal", 30))
sketch4.addConstraint(Sketcher.Constraint("Vertical", 31))
sketch4.addConstraint(Sketcher.Constraint("Horizontal", 32))
sketch4.addConstraint(Sketcher.Constraint("Vertical", 33))
sketch4.addConstraint(Sketcher.Constraint("Equal", 4, 6))
sketch4.addConstraint(Sketcher.Constraint("Equal", 6, 8))
sketch4.addConstraint(Sketcher.Constraint("Equal", 8, 10))
sketch4.addConstraint(Sketcher.Constraint("Equal", 10, 12))
sketch4.addConstraint(Sketcher.Constraint("Equal", 12, 14))
sketch4.addConstraint(Sketcher.Constraint("Equal", 14, 16))
sketch4.addConstraint(Sketcher.Constraint("Equal", 16, 18))
sketch4.addConstraint(Sketcher.Constraint("Equal", 18, 22))
sketch4.addConstraint(Sketcher.Constraint("Equal", 22, 24))
sketch4.addConstraint(Sketcher.Constraint("Equal", 24, 26))
sketch4.addConstraint(Sketcher.Constraint("Equal", 26, 28))
sketch4.addConstraint(Sketcher.Constraint("Equal", 28, 30))
sketch4.addConstraint(Sketcher.Constraint("Equal", 3, 5))
sketch4.addConstraint(Sketcher.Constraint("Equal", 5, 7))
sketch4.addConstraint(Sketcher.Constraint("Equal", 7, 9))
sketch4.addConstraint(Sketcher.Constraint("Equal", 9, 11))
sketch4.addConstraint(Sketcher.Constraint("Equal", 11, 13))
sketch4.addConstraint(Sketcher.Constraint("Equal", 13, 15))
sketch4.addConstraint(Sketcher.Constraint("Equal", 15, 21))
sketch4.addConstraint(Sketcher.Constraint("Equal", 21, 23))
sketch4.addConstraint(Sketcher.Constraint("Equal", 23, 25))
sketch4.addConstraint(Sketcher.Constraint("Equal", 25, 27))
sketch4.addConstraint(Sketcher.Constraint("Equal", 27, 29))
sketch4.addConstraint(Sketcher.Constraint("Equal", 29, 31))
sketch4.addConstraint(Sketcher.Constraint("DistanceY", 3, 2, 3, 1, Q("2 in")))
sketch4.addConstraint(Sketcher.Constraint("DistanceY", -1, 1, 0, 2, Q("40 in")))
sketch4.addConstraint(Sketcher.Constraint("DistanceX", 2, 2, 2, 1, Q("2.55 in")))
sketch4.addConstraint(Sketcher.Constraint("DistanceX", 4, 2, 4, 1, Q("1.24 in")))
sketch4.addConstraint(Sketcher.Constraint("Distance", 20, Q("1.24 in")))
sketch4.addConstraint(Sketcher.Constraint("DistanceY", 1, 2, 1, 1, Q("104.796311 mm")))
sketch4.addConstraint(Sketcher.Constraint("DistanceY", 19, 2, 19, 1, Q("34.838319 mm")))
sketch4.addConstraint(Sketcher.Constraint("DistanceY", 33, 1, 33, 2, Q("838.19163 mm")))
sketch4.addConstraint(Sketcher.Constraint("DistanceX", 0, 1, 0, 2, Q("537.197316 mm")))
sketch4.addConstraint(Sketcher.Constraint("DistanceY", 17, 2, 17, 1, Q("38.154363 mm")))
sketch4.addConstraint(Sketcher.Constraint("DistanceX", -1, 1, 0, 2, Q("380.538228 mm")))
sketch4.setExpression("Constraints[91]", "Params.sketch4_height")
sketch4.setExpression("Constraints[93]", "Params.sketch4_width")
sketch4.setExpression("Constraints[94]", "Params.sketch4_width2")
sketch4.setExpression("Constraints[95]", "Params.sketch4_length")
pocket3 = doc.addObject("PartDesign::Pocket", "Pocket002")
body.addObject(pocket3)
pocket3.Profile = sketch4
pocket3.setExpression("Length", "Params.pocket3_length")
pocket3.Reversed = True

doc.recompute()
